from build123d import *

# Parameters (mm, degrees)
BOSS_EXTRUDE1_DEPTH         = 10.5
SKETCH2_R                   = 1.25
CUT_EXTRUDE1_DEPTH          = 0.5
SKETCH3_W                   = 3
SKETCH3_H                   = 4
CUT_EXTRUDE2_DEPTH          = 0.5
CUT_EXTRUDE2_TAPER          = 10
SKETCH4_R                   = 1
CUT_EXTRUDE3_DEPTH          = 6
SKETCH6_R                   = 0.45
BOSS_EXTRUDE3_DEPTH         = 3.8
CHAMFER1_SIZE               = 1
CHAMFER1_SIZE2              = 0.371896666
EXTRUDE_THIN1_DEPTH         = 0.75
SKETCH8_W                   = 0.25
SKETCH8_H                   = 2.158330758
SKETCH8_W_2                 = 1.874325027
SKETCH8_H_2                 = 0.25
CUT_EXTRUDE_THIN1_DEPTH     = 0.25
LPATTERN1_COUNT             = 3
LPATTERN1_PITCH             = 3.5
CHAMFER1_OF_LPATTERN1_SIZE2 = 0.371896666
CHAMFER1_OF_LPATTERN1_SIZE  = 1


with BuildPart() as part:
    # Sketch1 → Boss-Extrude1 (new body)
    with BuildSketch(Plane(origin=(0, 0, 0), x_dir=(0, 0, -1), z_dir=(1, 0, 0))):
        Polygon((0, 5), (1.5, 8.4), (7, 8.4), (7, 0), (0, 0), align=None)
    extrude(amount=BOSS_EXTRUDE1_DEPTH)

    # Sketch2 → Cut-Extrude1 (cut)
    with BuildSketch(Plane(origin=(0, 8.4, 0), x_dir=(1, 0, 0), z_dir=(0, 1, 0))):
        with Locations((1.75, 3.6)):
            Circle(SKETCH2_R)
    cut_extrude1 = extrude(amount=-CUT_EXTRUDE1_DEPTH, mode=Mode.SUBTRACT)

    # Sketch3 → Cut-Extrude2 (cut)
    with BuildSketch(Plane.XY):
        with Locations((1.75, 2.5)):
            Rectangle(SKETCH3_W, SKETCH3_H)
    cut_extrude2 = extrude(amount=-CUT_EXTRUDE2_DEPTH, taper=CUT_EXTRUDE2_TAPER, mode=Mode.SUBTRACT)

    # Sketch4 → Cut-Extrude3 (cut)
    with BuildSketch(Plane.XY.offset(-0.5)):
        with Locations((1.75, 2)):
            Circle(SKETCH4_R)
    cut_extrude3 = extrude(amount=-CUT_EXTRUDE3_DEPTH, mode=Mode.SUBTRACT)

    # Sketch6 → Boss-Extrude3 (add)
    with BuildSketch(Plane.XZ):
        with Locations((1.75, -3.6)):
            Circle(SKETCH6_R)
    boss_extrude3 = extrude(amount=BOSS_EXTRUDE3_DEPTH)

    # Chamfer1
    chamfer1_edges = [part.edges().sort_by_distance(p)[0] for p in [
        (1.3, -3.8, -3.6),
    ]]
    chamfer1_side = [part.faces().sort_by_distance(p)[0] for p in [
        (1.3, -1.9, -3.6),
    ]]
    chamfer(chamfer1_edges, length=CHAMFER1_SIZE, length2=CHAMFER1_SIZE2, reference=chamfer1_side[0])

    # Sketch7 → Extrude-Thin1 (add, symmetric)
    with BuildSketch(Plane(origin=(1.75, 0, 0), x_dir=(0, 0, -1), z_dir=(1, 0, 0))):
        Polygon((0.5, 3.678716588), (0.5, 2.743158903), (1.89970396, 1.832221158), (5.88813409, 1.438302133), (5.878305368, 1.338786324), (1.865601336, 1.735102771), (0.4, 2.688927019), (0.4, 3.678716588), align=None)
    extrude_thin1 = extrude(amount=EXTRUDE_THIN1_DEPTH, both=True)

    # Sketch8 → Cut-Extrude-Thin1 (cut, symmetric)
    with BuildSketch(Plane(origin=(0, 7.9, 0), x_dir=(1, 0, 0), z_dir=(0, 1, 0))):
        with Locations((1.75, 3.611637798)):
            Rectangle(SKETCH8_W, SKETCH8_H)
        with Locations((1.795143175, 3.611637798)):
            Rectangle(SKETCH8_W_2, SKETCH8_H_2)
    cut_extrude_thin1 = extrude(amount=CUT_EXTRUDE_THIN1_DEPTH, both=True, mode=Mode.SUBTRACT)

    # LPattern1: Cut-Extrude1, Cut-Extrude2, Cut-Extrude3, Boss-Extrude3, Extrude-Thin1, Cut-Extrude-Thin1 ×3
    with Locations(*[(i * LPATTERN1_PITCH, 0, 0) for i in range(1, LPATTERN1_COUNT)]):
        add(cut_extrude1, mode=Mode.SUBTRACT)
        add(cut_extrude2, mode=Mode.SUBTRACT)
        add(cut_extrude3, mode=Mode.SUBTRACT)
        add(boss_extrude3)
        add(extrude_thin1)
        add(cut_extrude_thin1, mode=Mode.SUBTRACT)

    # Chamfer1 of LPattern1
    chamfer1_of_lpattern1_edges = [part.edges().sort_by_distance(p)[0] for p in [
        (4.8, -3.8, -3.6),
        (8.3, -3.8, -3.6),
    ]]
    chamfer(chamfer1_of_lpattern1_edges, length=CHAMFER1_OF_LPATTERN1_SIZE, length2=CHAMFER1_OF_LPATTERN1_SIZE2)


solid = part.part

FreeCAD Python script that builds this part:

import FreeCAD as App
import Part
import Sketcher

V = App.Vector
Q = App.Units.Quantity


def edges_at(feature, points):
    """Names of the edges that pass closest to the given points."""
    edges = feature.Shape.Edges
    near = lambda p: min(range(len(edges)), key=lambda i: edges[i].distToShape(Part.Vertex(*p))[0])
    return sorted({f"Edge{near(p) + 1}" for p in points})

doc = App.newDocument("Part")
body = doc.addObject("PartDesign::Body", "Body")

sketch1 = body.newObject("Sketcher::SketchObject", "Sketch")
sketch1.AttachmentSupport = (doc.getObject("YZ_Plane"), [""])
sketch1.MapMode = "FlatFace"
sketch1.addGeometry(Part.LineSegment(V(8.4, -1.5, 0), V(5, 0, 0)), False)
sketch1.addGeometry(Part.LineSegment(V(5, 0, 0), V(0, 0, 0)), False)
sketch1.addGeometry(Part.LineSegment(V(0, 0, 0), V(0, -7, 0)), False)
sketch1.addGeometry(Part.LineSegment(V(0, -7, 0), V(8.4, -7, 0)), False)
sketch1.addGeometry(Part.LineSegment(V(8.4, -7, 0), V(8.4, -1.5, 0)), False)
sketch1.addConstraint(Sketcher.Constraint("Coincident", 0, 2, 1, 1))
sketch1.addConstraint(Sketcher.Constraint("Coincident", 1, 2, 2, 1))
sketch1.addConstraint(Sketcher.Constraint("Coincident", 2, 2, 3, 1))
sketch1.addConstraint(Sketcher.Constraint("Coincident", 3, 2, 4, 1))
sketch1.addConstraint(Sketcher.Constraint("Coincident", 4, 2, 0, 1))
sketch1.addConstraint(Sketcher.Constraint("Horizontal", 1))
sketch1.addConstraint(Sketcher.Constraint("Vertical", 2))
sketch1.addConstraint(Sketcher.Constraint("Horizontal", 3))
sketch1.addConstraint(Sketcher.Constraint("Vertical", 4))
sketch1.addConstraint(Sketcher.Constraint("Coincident", 1, 2, -1, 1))
sketch1.addConstraint(Sketcher.Constraint("DistanceX", 1, 2, 1, 1, Q("5 mm")))
sketch1.addConstraint(Sketcher.Constraint("DistanceY", 2, 2, 2, 1, Q("7 mm")))
sketch1.addConstraint(Sketcher.Constraint("DistanceX", 3, 1, 3, 2, Q("8.4 mm")))
sketch1.addConstraint(Sketcher.Constraint("DistanceY", 4, 1, 4, 2, Q("5.5 mm")))
pad1 = body.newObject("PartDesign::Pad", "Pad")
pad1.Profile = sketch1
pad1.Length = 10.5

sketch2 = body.newObject("Sketcher::SketchObject", "Sketch001")
sketch2.AttachmentSupport = (doc.getObject("XZ_Plane"), [""])
sketch2.MapMode = "FlatFace"
sketch2.AttachmentOffset = App.Placement(V(0, 0, -8.4), App.Rotation())
sketch2.addGeometry(Part.Circle(V(1.8, -3.6, 0), V(0, 0, 1), 1.2), False)
sketch2.addConstraint(Sketcher.Constraint("Diameter", 0, Q("2.5 mm")))
sketch2.addConstraint(Sketcher.Constraint("DistanceY", 0, 3, -1, 1, Q("3.6 mm")))
sketch2.addConstraint(Sketcher.Constraint("DistanceX", -1, 1, 0, 3, Q("1.75 mm")))
pocket1 = body.newObject("PartDesign::Pocket", "Pocket")
pocket1.Profile = sketch2
pocket1.Length = 0.5
pocket1.Reversed = True

sketch3 = body.newObject("Sketcher::SketchObject", "Sketch002")
sketch3.AttachmentSupport = (doc.getObject("XY_Plane"), [""])
sketch3.MapMode = "FlatFace"
sketch3.addGeometry(Part.LineSegment(V(0.2, 4.5, 0), V(0.2, 0.5, 0)), False)
sketch3.addGeometry(Part.LineSegment(V(0.2, 0.5, 0), V(3.2, 0.5, 0)), False)
sketch3.addGeometry(Part.LineSegment(V(3.2, 0.5, 0), V(3.2, 4.5, 0)), False)
sketch3.addGeometry(Part.LineSegment(V(3.2, 4.5, 0), V(0.2, 4.5, 0)), False)
sketch3.addConstraint(Sketcher.Constraint("Coincident", 0, 2, 1, 1))
sketch3.addConstraint(Sketcher.Constraint("Coincident", 1, 2, 2, 1))
sketch3.addConstraint(Sketcher.Constraint("Coincident", 2, 2, 3, 1))
sketch3.addConstraint(Sketcher.Constraint("Coincident", 3, 2, 0, 1))
sketch3.addConstraint(Sketcher.Constraint("Vertical", 0))
sketch3.addConstraint(Sketcher.Constraint("Horizontal", 1))
sketch3.addConstraint(Sketcher.Constraint("Vertical", 2))
sketch3.addConstraint(Sketcher.Constraint("Horizontal", 3))
sketch3.addConstraint(Sketcher.Constraint("DistanceX", 1, 1, 1, 2, Q("3 mm")))
sketch3.addConstraint(Sketcher.Constraint("DistanceY", 0, 2, 0, 1, Q("4 mm")))
sketch3.addConstraint(Sketcher.Constraint("DistanceY", -1, 1, 0, 2, Q("0.5 mm")))
sketch3.addConstraint(Sketcher.Constraint("DistanceX", -1, 1, 0, 2, Q("0.25 mm")))
pocket2 = body.newObject("PartDesign::Pocket", "Pocket001")
pocket2.Profile = sketch3
pocket2.Length = 0.5
pocket2.TaperAngle = -10

sketch4 = body.newObject("Sketcher::SketchObject", "Sketch003")
sketch4.AttachmentSupport = (doc.getObject("XY_Plane"), [""])
sketch4.MapMode = "FlatFace"
sketch4.AttachmentOffset = App.Placement(V(0, 0, -0.5), App.Rotation())
sketch4.addGeometry(Part.Circle(V(1.8, 2, 0), V(0, 0, 1), 1), False)
sketch4.addConstraint(Sketcher.Constraint("Diameter", 0, Q("2 mm")))
sketch4.addConstraint(Sketcher.Constraint("DistanceY", -1, 1, 0, 3, Q("2 mm")))
sketch4.addConstraint(Sketcher.Constraint("DistanceX", -1, 1, 0, 3, Q("1.75 mm")))
pocket3 = body.newObject("PartDesign::Pocket", "Pocket002")
pocket3.Profile = sketch4
pocket3.Length = 6

sketch5 = body.newObject("Sketcher::SketchObject", "Sketch004")
sketch5.AttachmentSupport = (doc.getObject("XZ_Plane"), [""])
sketch5.MapMode = "FlatFace"
sketch5.addGeometry(Part.Circle(V(1.75, -3.6, 0), V(0, 0, 1), 0.45), False)
sketch5.addConstraint(Sketcher.Constraint("Diameter", 0, Q("0.9 mm")))
sketch5.addConstraint(Sketcher.Constraint("DistanceY", 0, 3, -1, 1, Q("3.6 mm")))
sketch5.addConstraint(Sketcher.Constraint("DistanceX", -1, 1, 0, 3, Q("1.75 mm")))
pad2 = body.newObject("PartDesign::Pad", "Pad001")
pad2.Profile = sketch5
pad2.Length = 3.8
doc.recompute()

chamfer = body.newObject("PartDesign::Chamfer", "Chamfer")
chamfer.Base = (pad2, edges_at(pad2, [(1.3, -3.8, -3.6)]))
chamfer.ChamferType = "Two distances"
chamfer.Size = 1
chamfer.Size2 = 0.371897

sketch6 = body.newObject("Sketcher::SketchObject", "Sketch005")
sketch6.AttachmentSupport = (doc.getObject("YZ_Plane"), [""])
sketch6.MapMode = "FlatFace"
sketch6.AttachmentOffset = App.Placement(V(0, 0, 1.75), App.Rotation())
sketch6.addGeometry(Part.LineSegment(V(2.74, -0.5, 0), V(3.68, -0.5, 0)), False)
sketch6.addGeometry(Part.LineSegment(V(3.68, -0.5, 0), V(3.68, -0.4, 0)), False)
sketch6.addGeometry(Part.LineSegment(V(3.68, -0.4, 0), V(2.69, -0.4, 0)), False)
sketch6.addGeometry(Part.LineSegment(V(2.69, -0.4, 0), V(1.74, -1.87, 0)), False)
sketch6.addGeometry(Part.LineSegment(V(1.74, -1.87, 0), V(1.34, -5.88, 0)), False)
sketch6.addGeometry(Part.LineSegment(V(1.34, -5.88, 0), V(1.44, -5.89, 0)), False)
sketch6.addGeometry(Part.LineSegment(V(1.44, -5.89, 0), V(1.83, -1.9, 0)), False)
sketch6.addGeometry(Part.LineSegment(V(1.83, -1.9, 0), V(2.74, -0.5, 0)), False)
sketch6.addConstraint(Sketcher.Constraint("Coincident", 0, 2, 1, 1))
sketch6.addConstraint(Sketcher.Constraint("Coincident", 1, 2, 2, 1))
sketch6.addConstraint(Sketcher.Constraint("Coincident", 2, 2, 3, 1))
sketch6.addConstraint(Sketcher.Constraint("Coincident", 3, 2, 4, 1))
sketch6.addConstraint(Sketcher.Constraint("Coincident", 4, 2, 5, 1))
sketch6.addConstraint(Sketcher.Constraint("Coincident", 5, 2, 6, 1))
sketch6.addConstraint(Sketcher.Constraint("Coincident", 6, 2, 7, 1))
sketch6.addConstraint(Sketcher.Constraint("Coincident", 7, 2, 0, 1))
sketch6.addConstraint(Sketcher.Constraint("Horizontal", 0))
sketch6.addConstraint(Sketcher.Constraint("Vertical", 1))
sketch6.addConstraint(Sketcher.Constraint("Horizontal", 2))
sketch6.addConstraint(Sketcher.Constraint("Perpendicular", 4, 5))
sketch6.addConstraint(Sketcher.Constraint("Perpendicular", 5, 6))
sketch6.addConstraint(Sketcher.Constraint("Parallel", 3, 7))
sketch6.addConstraint(Sketcher.Constraint("DistanceY", 1, 1, 1, 2, Q("0.1 mm")))
sketch6.addConstraint(Sketcher.Constraint("Distance", 5, Q("0.1 mm")))
sketch6.addConstraint(Sketcher.Constraint("DistanceY", 0, 2, -1, 1, Q("0.5 mm")))
sketch6.addConstraint(Sketcher.Constraint("DistanceX", 2, 2, 2, 1, Q("0.98979 mm")))
sketch6.addConstraint(Sketcher.Constraint("DistanceY", 3, 2, -1, 1, Q("1.865601 mm")))
sketch6.addConstraint(Sketcher.Constraint("DistanceX", 5, 2, 3, 2, Q("0.296801 mm")))
sketch6.addConstraint(Sketcher.Constraint("DistanceX", 0, 1, 0, 2, Q("0.935558 mm")))
sketch6.addConstraint(Sketcher.Constraint("DistanceX", -1, 1, 6, 2, Q("1.832221 mm")))
sketch6.addConstraint(Sketcher.Constraint("DistanceX", -1, 1, 7, 2, Q("2.743159 mm")))
sketch6.addConstraint(Sketcher.Constraint("DistanceY", 5, 2, 6, 2, Q("3.98843 mm")))
pad3 = body.newObject("PartDesign::Pad", "Pad002")
pad3.Profile = sketch6
pad3.Length = 1.5
pad3.Midplane = True

sketch7 = body.newObject("Sketcher::SketchObject", "Sketch006")
sketch7.AttachmentSupport = (doc.getObject("XZ_Plane"), [""])
sketch7.MapMode = "FlatFace"
sketch7.AttachmentOffset = App.Placement(V(0, 0, -7.9), App.Rotation())
sketch7.addGeometry(Part.LineSegment(V(1.62, -3.49, 0), V(1.62, -2.53, 0)), False)
sketch7.addGeometry(Part.LineSegment(V(1.62, -2.53, 0), V(1.88, -2.53, 0)), False)
sketch7.addGeometry(Part.LineSegment(V(1.88, -2.53, 0), V(1.88, -3.49, 0)), False)
sketch7.addGeometry(Part.LineSegment(V(1.88, -3.49, 0), V(2.73, -3.49, 0)), False)
sketch7.addGeometry(Part.LineSegment(V(2.73, -3.49, 0), V(2.73, -3.74, 0)), False)
sketch7.addGeometry(Part.LineSegment(V(2.73, -3.74, 0), V(1.88, -3.74, 0)), False)
sketch7.addGeometry(Part.LineSegment(V(1.88, -3.74, 0), V(1.88, -4.69, 0)), False)
sketch7.addGeometry(Part.LineSegment(V(1.88, -4.69, 0), V(1.62, -4.69, 0)), False)
sketch7.addGeometry(Part.LineSegment(V(1.62, -4.69, 0), V(1.62, -3.74, 0)), False)
sketch7.addGeometry(Part.LineSegment(V(1.62, -3.74, 0), V(0.86, -3.74, 0)), False)
sketch7.addGeometry(Part.LineSegment(V(0.86, -3.74, 0), V(0.86, -3.49, 0)), False)
sketch7.addGeometry(Part.LineSegment(V(0.86, -3.49, 0), V(1.62, -3.49, 0)), False)
sketch7.addConstraint(Sketcher.Constraint("Coincident", 0, 2, 1, 1))
sketch7.addConstraint(Sketcher.Constraint("Coincident", 1, 2, 2, 1))
sketch7.addConstraint(Sketcher.Constraint("Coincident", 2, 2, 3, 1))
sketch7.addConstraint(Sketcher.Constraint("Coincident", 3, 2, 4, 1))
sketch7.addConstraint(Sketcher.Constraint("Coincident", 4, 2, 5, 1))
sketch7.addConstraint(Sketcher.Constraint("Coincident", 5, 2, 6, 1))
sketch7.addConstraint(Sketcher.Constraint("Coincident", 6, 2, 7, 1))
sketch7.addConstraint(Sketcher.Constraint("Coincident", 7, 2, 8, 1))
sketch7.addConstraint(Sketcher.Constraint("Coincident", 8, 2, 9, 1))
sketch7.addConstraint(Sketcher.Constraint("Coincident", 9, 2, 10, 1))
sketch7.addConstraint(Sketcher.Constraint("Coincident", 10, 2, 11, 1))
sketch7.addConstraint(Sketcher.Constraint("Coincident", 11, 2, 0, 1))
sketch7.addConstraint(Sketcher.Constraint("Vertical", 0))
sketch7.addConstraint(Sketcher.Constraint("Horizontal", 1))
sketch7.addConstraint(Sketcher.Constraint("Vertical", 2))
sketch7.addConstraint(Sketcher.Constraint("Horizontal", 3))
sketch7.addConstraint(Sketcher.Constraint("Vertical", 4))
sketch7.addConstraint(Sketcher.Constraint("Horizontal", 5))
sketch7.addConstraint(Sketcher.Constraint("Vertical", 6))
sketch7.addConstraint(Sketcher.Constraint("Horizontal", 7))
sketch7.addConstraint(Sketcher.Constraint("Vertical", 8))
sketch7.addConstraint(Sketcher.Constraint("Horizontal", 9))
sketch7.addConstraint(Sketcher.Constraint("Vertical", 10))
sketch7.addConstraint(Sketcher.Constraint("Horizontal", 11))
sketch7.addConstraint(Sketcher.Constraint("Horizontal", 5, 2, 8, 2))
sketch7.addConstraint(Sketcher.Constraint("Horizontal", 3, 2, 10, 2))
sketch7.addConstraint(Sketcher.Constraint("Vertical", 2, 2, 5, 2))
sketch7.addConstraint(Sketcher.Constraint("Vertical", 0, 2, 7, 2))
sketch7.addConstraint(Sketcher.Constraint("Equal", 7, 4))
sketch7.addConstraint(Sketcher.Constraint("Equal", 2, 6))
sketch7.addConstraint(Sketcher.Constraint("DistanceX", 1, 1, 1, 2, Q("0.25 mm")))
sketch7.addConstraint(Sketcher.Constraint("DistanceX", -1, 1, 0, 2, Q("1.625 mm")))
sketch7.addConstraint(Sketcher.Constraint("DistanceX", 9, 2, 9, 1, Q("0.767019 mm")))
sketch7.addConstraint(Sketcher.Constraint("DistanceX", 3, 1, 3, 2, Q("0.857306 mm")))
sketch7.addConstraint(Sketcher.Constraint("DistanceY", 0, 1, 0, 2, Q("0.954165 mm")))
sketch7.addConstraint(Sketcher.Constraint("DistanceY", 0, 2, -1, 1, Q("2.532472 mm")))
pocket4 = body.newObject("PartDesign::Pocket", "Pocket003")
pocket4.Profile = sketch7
pocket4.Length = 0.5
pocket4.Midplane = True
doc.recompute()

linearpattern = body.newObject("PartDesign::LinearPattern", "LinearPattern")
linearpattern.Originals = [pocket1, pocket2, pocket3, pad2, pad3, pocket4]
linearpattern.Direction = (doc.getObject("X_Axis"), [""])
linearpattern.Mode = "offset"
linearpattern.Offset = 3.5
linearpattern.Occurrences = 3
body.Tip = linearpattern
doc.recompute()

chamfer2 = body.newObject("PartDesign::Chamfer", "Chamfer001")
chamfer2.Base = (linearpattern, edges_at(linearpattern, [(4.8, -3.8, -3.6), (8.3, -3.8, -3.6)]))
chamfer2.ChamferType = "Two distances"
chamfer2.Size = 1
chamfer2.Size2 = 0.371897

doc.recompute()
